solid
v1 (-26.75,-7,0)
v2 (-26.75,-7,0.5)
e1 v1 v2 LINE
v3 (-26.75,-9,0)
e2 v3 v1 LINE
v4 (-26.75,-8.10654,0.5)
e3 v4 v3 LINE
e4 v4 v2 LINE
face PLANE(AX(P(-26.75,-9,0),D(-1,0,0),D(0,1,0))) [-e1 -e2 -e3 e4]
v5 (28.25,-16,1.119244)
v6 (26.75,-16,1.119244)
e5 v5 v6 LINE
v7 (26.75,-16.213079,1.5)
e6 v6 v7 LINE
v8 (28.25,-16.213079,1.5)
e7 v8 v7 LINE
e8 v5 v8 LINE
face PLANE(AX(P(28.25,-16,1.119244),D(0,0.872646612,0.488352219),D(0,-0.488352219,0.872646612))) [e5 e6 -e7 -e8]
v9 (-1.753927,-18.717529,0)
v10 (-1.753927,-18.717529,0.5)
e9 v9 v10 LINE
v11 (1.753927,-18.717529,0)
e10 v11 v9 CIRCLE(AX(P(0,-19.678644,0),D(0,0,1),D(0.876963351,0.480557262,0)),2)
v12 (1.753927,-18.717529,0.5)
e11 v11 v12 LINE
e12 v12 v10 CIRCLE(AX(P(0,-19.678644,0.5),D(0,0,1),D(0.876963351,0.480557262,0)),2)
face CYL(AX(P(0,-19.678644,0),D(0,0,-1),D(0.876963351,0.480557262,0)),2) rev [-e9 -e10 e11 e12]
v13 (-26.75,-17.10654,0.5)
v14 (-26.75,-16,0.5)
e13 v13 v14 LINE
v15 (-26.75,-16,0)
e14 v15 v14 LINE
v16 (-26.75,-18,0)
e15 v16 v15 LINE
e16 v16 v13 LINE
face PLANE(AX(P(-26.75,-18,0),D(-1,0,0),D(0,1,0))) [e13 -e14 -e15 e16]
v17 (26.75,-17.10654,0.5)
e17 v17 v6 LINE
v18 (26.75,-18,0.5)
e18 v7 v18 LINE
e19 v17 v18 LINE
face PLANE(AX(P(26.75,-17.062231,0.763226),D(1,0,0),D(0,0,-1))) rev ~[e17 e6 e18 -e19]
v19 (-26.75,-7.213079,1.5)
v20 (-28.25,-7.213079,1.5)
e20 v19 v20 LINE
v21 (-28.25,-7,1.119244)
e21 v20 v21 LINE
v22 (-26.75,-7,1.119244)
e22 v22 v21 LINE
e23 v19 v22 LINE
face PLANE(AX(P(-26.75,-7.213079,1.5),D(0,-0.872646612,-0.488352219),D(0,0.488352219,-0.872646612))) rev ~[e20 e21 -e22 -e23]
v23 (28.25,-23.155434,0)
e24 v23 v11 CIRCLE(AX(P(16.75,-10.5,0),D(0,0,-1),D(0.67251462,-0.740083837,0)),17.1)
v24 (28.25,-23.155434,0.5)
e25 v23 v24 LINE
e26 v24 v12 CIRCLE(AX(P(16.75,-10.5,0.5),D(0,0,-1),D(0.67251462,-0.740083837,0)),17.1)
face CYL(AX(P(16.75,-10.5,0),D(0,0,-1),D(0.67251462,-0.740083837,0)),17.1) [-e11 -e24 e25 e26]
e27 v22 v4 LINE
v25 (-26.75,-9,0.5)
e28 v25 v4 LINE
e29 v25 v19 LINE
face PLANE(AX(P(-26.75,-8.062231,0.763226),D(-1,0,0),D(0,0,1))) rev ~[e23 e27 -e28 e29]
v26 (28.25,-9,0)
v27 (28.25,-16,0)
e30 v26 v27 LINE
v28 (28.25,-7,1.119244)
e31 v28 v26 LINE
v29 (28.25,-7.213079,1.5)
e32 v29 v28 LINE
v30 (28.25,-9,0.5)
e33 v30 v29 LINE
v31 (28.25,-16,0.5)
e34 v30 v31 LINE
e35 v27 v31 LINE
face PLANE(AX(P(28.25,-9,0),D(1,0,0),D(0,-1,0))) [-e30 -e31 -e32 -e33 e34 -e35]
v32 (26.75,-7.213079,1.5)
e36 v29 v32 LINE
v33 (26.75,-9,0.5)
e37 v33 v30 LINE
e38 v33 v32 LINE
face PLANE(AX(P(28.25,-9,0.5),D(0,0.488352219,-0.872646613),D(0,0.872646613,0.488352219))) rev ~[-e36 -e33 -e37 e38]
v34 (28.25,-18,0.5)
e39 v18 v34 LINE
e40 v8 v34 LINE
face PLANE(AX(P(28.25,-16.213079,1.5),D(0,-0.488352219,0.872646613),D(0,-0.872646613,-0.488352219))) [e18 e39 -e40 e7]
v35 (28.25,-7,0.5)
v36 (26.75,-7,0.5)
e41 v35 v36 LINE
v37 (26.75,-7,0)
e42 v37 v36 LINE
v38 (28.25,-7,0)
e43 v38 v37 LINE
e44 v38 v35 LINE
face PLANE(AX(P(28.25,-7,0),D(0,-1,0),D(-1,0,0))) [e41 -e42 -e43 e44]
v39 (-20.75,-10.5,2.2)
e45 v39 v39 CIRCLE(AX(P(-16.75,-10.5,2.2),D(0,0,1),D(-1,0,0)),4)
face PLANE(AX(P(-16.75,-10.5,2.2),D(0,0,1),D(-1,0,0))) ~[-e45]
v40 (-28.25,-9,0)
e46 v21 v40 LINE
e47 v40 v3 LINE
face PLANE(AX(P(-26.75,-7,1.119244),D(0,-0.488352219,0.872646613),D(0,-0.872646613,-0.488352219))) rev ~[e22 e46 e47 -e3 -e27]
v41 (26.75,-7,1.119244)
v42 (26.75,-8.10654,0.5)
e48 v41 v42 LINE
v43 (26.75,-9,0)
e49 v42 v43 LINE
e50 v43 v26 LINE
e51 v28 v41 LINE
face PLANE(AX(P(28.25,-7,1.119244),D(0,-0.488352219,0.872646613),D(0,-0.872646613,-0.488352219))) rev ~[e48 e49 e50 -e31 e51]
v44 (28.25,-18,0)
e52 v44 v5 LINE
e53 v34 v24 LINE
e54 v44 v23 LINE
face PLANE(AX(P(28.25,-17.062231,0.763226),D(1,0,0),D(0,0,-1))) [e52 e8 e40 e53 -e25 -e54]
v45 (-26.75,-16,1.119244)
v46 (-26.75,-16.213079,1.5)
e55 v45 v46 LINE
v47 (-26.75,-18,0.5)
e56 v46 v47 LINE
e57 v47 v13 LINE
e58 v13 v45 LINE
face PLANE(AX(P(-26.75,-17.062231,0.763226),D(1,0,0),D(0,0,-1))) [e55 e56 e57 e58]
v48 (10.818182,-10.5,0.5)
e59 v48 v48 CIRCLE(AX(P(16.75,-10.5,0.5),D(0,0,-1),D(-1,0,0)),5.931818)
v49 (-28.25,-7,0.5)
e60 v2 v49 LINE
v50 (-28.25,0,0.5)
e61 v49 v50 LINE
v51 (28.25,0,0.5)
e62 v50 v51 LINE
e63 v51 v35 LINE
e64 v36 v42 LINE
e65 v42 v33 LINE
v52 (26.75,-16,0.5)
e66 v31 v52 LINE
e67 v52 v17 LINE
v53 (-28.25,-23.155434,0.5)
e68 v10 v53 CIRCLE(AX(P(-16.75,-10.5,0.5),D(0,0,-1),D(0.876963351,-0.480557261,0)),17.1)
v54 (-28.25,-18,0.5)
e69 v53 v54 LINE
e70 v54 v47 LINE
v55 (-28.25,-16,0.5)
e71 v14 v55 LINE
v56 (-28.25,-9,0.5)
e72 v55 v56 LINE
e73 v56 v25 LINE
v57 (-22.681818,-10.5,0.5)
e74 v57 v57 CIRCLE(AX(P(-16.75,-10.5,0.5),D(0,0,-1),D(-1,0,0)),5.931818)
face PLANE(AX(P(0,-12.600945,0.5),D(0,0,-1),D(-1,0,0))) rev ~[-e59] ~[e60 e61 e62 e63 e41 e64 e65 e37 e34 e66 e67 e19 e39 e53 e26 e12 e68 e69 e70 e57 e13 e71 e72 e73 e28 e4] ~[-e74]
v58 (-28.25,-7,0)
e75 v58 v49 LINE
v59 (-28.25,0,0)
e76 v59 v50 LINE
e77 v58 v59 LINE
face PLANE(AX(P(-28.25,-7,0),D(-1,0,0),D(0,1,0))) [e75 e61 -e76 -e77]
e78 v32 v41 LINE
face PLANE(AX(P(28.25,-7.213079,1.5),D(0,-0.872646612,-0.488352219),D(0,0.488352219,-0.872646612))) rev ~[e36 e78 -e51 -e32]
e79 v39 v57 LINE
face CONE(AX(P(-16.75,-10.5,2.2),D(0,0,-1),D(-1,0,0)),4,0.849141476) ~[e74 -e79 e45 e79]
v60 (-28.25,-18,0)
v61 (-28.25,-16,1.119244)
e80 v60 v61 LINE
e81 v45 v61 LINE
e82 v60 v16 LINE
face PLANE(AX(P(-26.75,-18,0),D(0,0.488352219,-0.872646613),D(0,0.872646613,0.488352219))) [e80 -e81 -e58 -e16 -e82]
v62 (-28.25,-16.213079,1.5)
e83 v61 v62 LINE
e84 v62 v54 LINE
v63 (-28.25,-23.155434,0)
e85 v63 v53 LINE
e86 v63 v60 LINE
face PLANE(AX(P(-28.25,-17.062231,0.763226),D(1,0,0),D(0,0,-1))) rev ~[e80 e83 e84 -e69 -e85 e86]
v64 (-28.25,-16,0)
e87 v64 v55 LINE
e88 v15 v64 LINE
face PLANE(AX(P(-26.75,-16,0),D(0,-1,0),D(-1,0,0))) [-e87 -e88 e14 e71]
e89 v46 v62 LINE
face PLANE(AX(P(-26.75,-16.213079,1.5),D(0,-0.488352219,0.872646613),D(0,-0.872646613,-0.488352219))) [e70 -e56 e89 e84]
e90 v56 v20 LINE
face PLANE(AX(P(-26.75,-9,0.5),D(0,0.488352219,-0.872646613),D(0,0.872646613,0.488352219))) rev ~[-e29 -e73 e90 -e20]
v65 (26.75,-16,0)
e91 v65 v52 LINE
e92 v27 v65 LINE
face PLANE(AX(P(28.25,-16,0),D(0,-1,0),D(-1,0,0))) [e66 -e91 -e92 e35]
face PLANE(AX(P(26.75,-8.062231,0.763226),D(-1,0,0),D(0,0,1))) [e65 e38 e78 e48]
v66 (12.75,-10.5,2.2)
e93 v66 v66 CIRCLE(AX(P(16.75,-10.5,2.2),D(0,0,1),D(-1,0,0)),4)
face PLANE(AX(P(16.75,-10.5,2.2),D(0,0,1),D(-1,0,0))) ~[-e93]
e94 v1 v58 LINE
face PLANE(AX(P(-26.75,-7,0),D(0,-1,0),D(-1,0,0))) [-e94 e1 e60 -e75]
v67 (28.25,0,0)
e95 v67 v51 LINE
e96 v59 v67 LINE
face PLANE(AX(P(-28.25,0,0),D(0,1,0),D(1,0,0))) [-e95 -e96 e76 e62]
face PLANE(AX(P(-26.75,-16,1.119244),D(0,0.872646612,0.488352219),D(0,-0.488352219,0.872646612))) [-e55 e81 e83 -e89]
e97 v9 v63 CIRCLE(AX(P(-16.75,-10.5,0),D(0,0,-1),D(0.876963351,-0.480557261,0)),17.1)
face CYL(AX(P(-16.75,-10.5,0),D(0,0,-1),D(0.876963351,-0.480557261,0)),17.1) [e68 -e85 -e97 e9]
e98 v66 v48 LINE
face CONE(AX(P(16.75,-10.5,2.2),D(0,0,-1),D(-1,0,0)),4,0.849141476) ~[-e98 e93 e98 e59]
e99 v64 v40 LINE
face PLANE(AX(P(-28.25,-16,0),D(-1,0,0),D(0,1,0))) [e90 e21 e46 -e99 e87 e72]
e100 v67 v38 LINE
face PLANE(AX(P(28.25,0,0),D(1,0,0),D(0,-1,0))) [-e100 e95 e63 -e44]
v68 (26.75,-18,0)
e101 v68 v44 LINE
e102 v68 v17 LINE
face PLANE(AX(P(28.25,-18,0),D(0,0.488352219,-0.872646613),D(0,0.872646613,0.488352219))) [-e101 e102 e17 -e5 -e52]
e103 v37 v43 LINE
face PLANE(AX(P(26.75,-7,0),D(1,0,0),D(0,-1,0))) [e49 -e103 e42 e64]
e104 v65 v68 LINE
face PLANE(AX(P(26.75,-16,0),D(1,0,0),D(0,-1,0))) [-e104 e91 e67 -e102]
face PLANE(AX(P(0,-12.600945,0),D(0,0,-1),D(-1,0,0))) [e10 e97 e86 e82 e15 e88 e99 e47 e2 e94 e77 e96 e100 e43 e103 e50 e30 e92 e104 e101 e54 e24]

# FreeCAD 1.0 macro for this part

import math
import FreeCAD as App
import Part
import Sketcher
from FreeCAD import Vector

doc = App.newDocument("Part")
body = doc.addObject("PartDesign::Body", "Body")

# Sketch on XY plane
sketch1 = doc.addObject("Sketcher::SketchObject", "Sketch")
body.addObject(sketch1)
sketch1.AttachmentSupport = (doc.XY_Plane, [""])
sketch1.MapMode = "FlatFace"
sketch1.addGeometry(Part.LineSegment(Vector(28.2, 0, 0), Vector(-28.2, 0, 0)), False)
sketch1.addGeometry(Part.LineSegment(Vector(-28.2, 0, 0), Vector(-28.2, -7, 0)), False)
sketch1.addGeometry(Part.LineSegment(Vector(-28.2, -7, 0), Vector(-26.8, -7, 0)), False)
sketch1.addGeometry(Part.LineSegment(Vector(-26.8, -7, 0), Vector(-26.8, -9, 0)), False)
sketch1.addGeometry(Part.LineSegment(Vector(-26.8, -9, 0), Vector(-28.2, -9, 0)), False)
sketch1.addGeometry(Part.LineSegment(Vector(-28.2, -9, 0), Vector(-28.2, -16, 0)), False)
sketch1.addGeometry(Part.LineSegment(Vector(-28.2, -16, 0), Vector(-26.8, -16, 0)), False)
sketch1.addGeometry(Part.LineSegment(Vector(-26.8, -16, 0), Vector(-26.8, -18, 0)), False)
sketch1.addGeometry(Part.LineSegment(Vector(-26.8, -18, 0), Vector(-28.2, -18, 0)), False)
sketch1.addGeometry(Part.LineSegment(Vector(-28.2, -18, 0), Vector(-28.2, -23.2, 0)), False)
sketch1.addGeometry(Part.ArcOfCircle(Part.Circle(Vector(-16.8, -10.5, 0), Vector(0, 0, 1), 17.1), math.radians(-132), math.radians(-29)), False)
sketch1.addGeometry(Part.ArcOfCircle(Part.Circle(Vector(0, -19.7, 0), Vector(0, 0, 1), 2), math.radians(29), math.radians(151)), False)
sketch1.addGeometry(Part.ArcOfCircle(Part.Circle(Vector(16.8, -10.5, 0), Vector(0, 0, 1), 17.1), math.radians(-151), math.radians(-48)), False)
sketch1.addGeometry(Part.LineSegment(Vector(28.2, -23.2, 0), Vector(28.2, -18, 0)), False)
sketch1.addGeometry(Part.LineSegment(Vector(28.2, -18, 0), Vector(26.8, -18, 0)), False)
sketch1.addGeometry(Part.LineSegment(Vector(26.8, -18, 0), Vector(26.8, -16, 0)), False)
sketch1.addGeometry(Part.LineSegment(Vector(26.8, -16, 0), Vector(28.2, -16, 0)), False)
sketch1.addGeometry(Part.LineSegment(Vector(28.2, -16, 0), Vector(28.2, -9, 0)), False)
sketch1.addGeometry(Part.LineSegment(Vector(28.2, -9, 0), Vector(26.8, -9, 0)), False)
sketch1.addGeometry(Part.LineSegment(Vector(26.8, -9, 0), Vector(26.8, -7, 0)), False)
sketch1.addGeometry(Part.LineSegment(Vector(26.8, -7, 0), Vector(28.2, -7, 0)), False)
sketch1.addGeometry(Part.LineSegment(Vector(28.2, -7, 0), Vector(28.2, 0, 0)), False)
sketch1.addConstraint(Sketcher.Constraint("Coincident", 0, 2, 1, 1))
sketch1.addConstraint(Sketcher.Constraint("Coincident", 1, 2, 2, 1))
sketch1.addConstraint(Sketcher.Constraint("Coincident", 2, 2, 3, 1))
sketch1.addConstraint(Sketcher.Constraint("Coincident", 3, 2, 4, 1))
sketch1.addConstraint(Sketcher.Constraint("Coincident", 4, 2, 5, 1))
sketch1.addConstraint(Sketcher.Constraint("Coincident", 5, 2, 6, 1))
sketch1.addConstraint(Sketcher.Constraint("Coincident", 6, 2, 7, 1))
sketch1.addConstraint(Sketcher.Constraint("Coincident", 7, 2, 8, 1))
sketch1.addConstraint(Sketcher.Constraint("Coincident", 8, 2, 9, 1))
sketch1.addConstraint(Sketcher.Constraint("Coincident", 9, 2, 10, 1))
sketch1.addConstraint(Sketcher.Constraint("Tangent", 10, 2, 11, 2))
sketch1.addConstraint(Sketcher.Constraint("Tangent", 11, 1, 12, 1))
sketch1.addConstraint(Sketcher.Constraint("Coincident", 12, 2, 13, 1))
sketch1.addConstraint(Sketcher.Constraint("Coincident", 13, 2, 14, 1))
sketch1.addConstraint(Sketcher.Constraint("Coincident", 14, 2, 15, 1))
sketch1.addConstraint(Sketcher.Constraint("Coincident", 15, 2, 16, 1))
sketch1.addConstraint(Sketcher.Constraint("Coincident", 16, 2, 17, 1))
sketch1.addConstraint(Sketcher.Constraint("Coincident", 17, 2, 18, 1))
sketch1.addConstraint(Sketcher.Constraint("Coincident", 18, 2, 19, 1))
sketch1.addConstraint(Sketcher.Constraint("Coincident", 19, 2, 20, 1))
sketch1.addConstraint(Sketcher.Constraint("Coincident", 20, 2, 21, 1))
sketch1.addConstraint(Sketcher.Constraint("Coincident", 21, 2, 0, 1))
sketch1.addConstraint(Sketcher.Constraint("Horizontal", 0))
sketch1.addConstraint(Sketcher.Constraint("Vertical", 1))
sketch1.addConstraint(Sketcher.Constraint("Horizontal", 2))
sketch1.addConstraint(Sketcher.Constraint("Vertical", 3))
sketch1.addConstraint(Sketcher.Constraint("Horizontal", 4))
sketch1.addConstraint(Sketcher.Constraint("Vertical", 5))
sketch1.addConstraint(Sketcher.Constraint("Horizontal", 6))
sketch1.addConstraint(Sketcher.Constraint("Vertical", 7))
sketch1.addConstraint(Sketcher.Constraint("Horizontal", 8))
sketch1.addConstraint(Sketcher.Constraint("Vertical", 9))
sketch1.addConstraint(Sketcher.Constraint("Vertical", 13))
sketch1.addConstraint(Sketcher.Constraint("Horizontal", 14))
sketch1.addConstraint(Sketcher.Constraint("Vertical", 15))
sketch1.addConstraint(Sketcher.Constraint("Horizontal", 16))
sketch1.addConstraint(Sketcher.Constraint("Vertical", 17))
sketch1.addConstraint(Sketcher.Constraint("Horizontal", 18))
sketch1.addConstraint(Sketcher.Constraint("Vertical", 19))
sketch1.addConstraint(Sketcher.Constraint("Horizontal", 20))
sketch1.addConstraint(Sketcher.Constraint("Vertical", 21))
sketch1.addConstraint(Sketcher.Constraint("Equal", 10, 12))
sketch1.addConstraint(Sketcher.Constraint("Symmetric", 0, 2, 21, 2, -1, 1))
sketch1.addConstraint(Sketcher.Constraint("Symmetric", 10, 3, 12, 3, -2))
sketch1.addConstraint(Sketcher.Constraint("Symmetric", 8, 2, 13, 2, -2))
sketch1.addConstraint(Sketcher.Constraint("Symmetric", 6, 2, 15, 2, -2))
sketch1.addConstraint(Sketcher.Constraint("Symmetric", 4, 2, 17, 2, -2))
sketch1.addConstraint(Sketcher.Constraint("Symmetric", 2, 2, 19, 2, -2))
sketch1.addConstraint(Sketcher.Constraint("Vertical", 1, 2, 4, 2))
sketch1.addConstraint(Sketcher.Constraint("Vertical", 3, 2, 6, 2))
sketch1.addConstraint(Sketcher.Constraint("Vertical", 5, 2, 8, 2))
sketch1.addConstraint(Sketcher.Constraint("Equal", 1, 5))
sketch1.addConstraint(Sketcher.Constraint("Equal", 3, 7))
sketch1.addConstraint(Sketcher.Constraint("Radius", 11, 2.0))
sketch1.addConstraint(Sketcher.Constraint("Radius", 10, 17.1))
sketch1.addConstraint(Sketcher.Constraint("DistanceY", 1, 2, 1, 1, 7.0))
sketch1.addConstraint(Sketcher.Constraint("DistanceY", 3, 2, 3, 1, 2.0))
sketch1.addConstraint(Sketcher.Constraint("DistanceX", 0, 2, 0, 1, 56.5))
sketch1.addConstraint(Sketcher.Constraint("DistanceX", 2, 1, 2, 2, 1.5))
sketch1.addConstraint(Sketcher.Constraint("DistanceX", 0, 2, 12, 3, 45.0))
sketch1.addConstraint(Sketcher.Constraint("DistanceY", 10, 3, -1, 1, 10.5))
pad1 = doc.addObject("PartDesign::Pad", "Pad")
body.addObject(pad1)
pad1.Profile = sketch1
pad1.Length = 0.5

# Sketch on XZ plane
sketch2 = doc.addObject("Sketcher::SketchObject", "Sketch001")
body.addObject(sketch2)
sketch2.AttachmentSupport = (doc.XZ_Plane, [""])
sketch2.MapMode = "FlatFace"
sketch2.AttachmentOffset = App.Placement(Vector(0, 0, 10.5), App.Rotation())
sketch2.addGeometry(Part.LineSegment(Vector(-16.8, 2.2, 0), Vector(-16.8, 0, 0)), False)
sketch2.addGeometry(Part.LineSegment(Vector(-16.8, 0, 0), Vector(-10.2, 0, 0)), False)
sketch2.addGeometry(Part.LineSegment(Vector(-10.2, 0, 0), Vector(-12.8, 2.2, 0)), False)
sketch2.addGeometry(Part.LineSegment(Vector(-12.8, 2.2, 0), Vector(-16.8, 2.2, 0)), False)
sketch2.addGeometry(Part.LineSegment(Vector(-16.8, 0, 0), Vector(-16.8, 2.2, 0)), True)  # axis
sketch2.addConstraint(Sketcher.Constraint("Coincident", 0, 2, 1, 1))
sketch2.addConstraint(Sketcher.Constraint("Coincident", 1, 2, 2, 1))
sketch2.addConstraint(Sketcher.Constraint("Coincident", 2, 2, 3, 1))
sketch2.addConstraint(Sketcher.Constraint("Coincident", 3, 2, 0, 1))
sketch2.addConstraint(Sketcher.Constraint("Vertical", 0))
sketch2.addConstraint(Sketcher.Constraint("Horizontal", 1))
sketch2.addConstraint(Sketcher.Constraint("Horizontal", 3))
sketch2.addConstraint(Sketcher.Constraint("Vertical", 4))
sketch2.addConstraint(Sketcher.Constraint("Coincident", 4, 1, 0, 2))
sketch2.addConstraint(Sketcher.Constraint("PointOnObject", 0, 2, -1))
sketch2.addConstraint(Sketcher.Constraint("Horizontal", 2, 2, 4, 2))
sketch2.addConstraint(Sketcher.Constraint("DistanceX", 3, 2, 3, 1, 4.0))
sketch2.addConstraint(Sketcher.Constraint("DistanceX", 1, 1, 1, 2, 6.5))
sketch2.addConstraint(Sketcher.Constraint("DistanceY", 0, 2, 0, 1, 2.2))
sketch2.addConstraint(Sketcher.Constraint("DistanceX", 0, 2, -1, 1, 16.75))
revolution = doc.addObject("PartDesign::Revolution", "Revolution")
body.addObject(revolution)
revolution.Profile = sketch2
revolution.ReferenceAxis = (sketch2, ["Axis0"])
revolution.Angle = 360

# Sketch on XZ plane
sketch3 = doc.addObject("Sketcher::SketchObject", "Sketch002")
body.addObject(sketch3)
sketch3.AttachmentSupport = (doc.XZ_Plane, [""])
sketch3.MapMode = "FlatFace"
sketch3.AttachmentOffset = App.Placement(Vector(0, 0, 10.5), App.Rotation())
sketch3.addGeometry(Part.LineSegment(Vector(16.8, 2.2, 0), Vector(16.8, 0, 0)), False)
sketch3.addGeometry(Part.LineSegment(Vector(16.8, 0, 0), Vector(23.2, 0, 0)), False)
sketch3.addGeometry(Part.LineSegment(Vector(23.2, 0, 0), Vector(20.8, 2.2, 0)), False)
sketch3.addGeometry(Part.LineSegment(Vector(20.8, 2.2, 0), Vector(16.8, 2.2, 0)), False)
sketch3.addGeometry(Part.LineSegment(Vector(16.8, 0, 0), Vector(16.8, 2.2, 0)), True)  # axis
sketch3.addConstraint(Sketcher.Constraint("Coincident", 0, 2, 1, 1))
sketch3.addConstraint(Sketcher.Constraint("Coincident", 1, 2, 2, 1))
sketch3.addConstraint(Sketcher.Constraint("Coincident", 2, 2, 3, 1))
sketch3.addConstraint(Sketcher.Constraint("Coincident", 3, 2, 0, 1))
sketch3.addConstraint(Sketcher.Constraint("Vertical", 0))
sketch3.addConstraint(Sketcher.Constraint("Horizontal", 1))
sketch3.addConstraint(Sketcher.Constraint("Horizontal", 3))
sketch3.addConstraint(Sketcher.Constraint("Vertical", 4))
sketch3.addConstraint(Sketcher.Constraint("Coincident", 4, 1, 0, 2))
sketch3.addConstraint(Sketcher.Constraint("PointOnObject", 0, 2, -1))
sketch3.addConstraint(Sketcher.Constraint("Horizontal", 2, 2, 4, 2))
sketch3.addConstraint(Sketcher.Constraint("DistanceX", 3, 2, 3, 1, 4.0))
sketch3.addConstraint(Sketcher.Constraint("DistanceX", 1, 1, 1, 2, 6.5))
sketch3.addConstraint(Sketcher.Constraint("DistanceY", 0, 2, 0, 1, 2.2))
sketch3.addConstraint(Sketcher.Constraint("DistanceX", -1, 1, 0, 2, 16.75))
revolution2 = doc.addObject("PartDesign::Revolution", "Revolution001")
body.addObject(revolution2)
revolution2.Profile = sketch3
revolution2.ReferenceAxis = (sketch3, ["Axis0"])
revolution2.Angle = 360

# Sketch on YZ plane
sketch4 = doc.addObject("Sketcher::SketchObject", "Sketch003")
body.addObject(sketch4)
sketch4.AttachmentSupport = (doc.YZ_Plane, [""])
sketch4.MapMode = "FlatFace"
sketch4.AttachmentOffset = App.Placement(Vector(0, 0, 28.25), App.Rotation())
sketch4.addGeometry(Part.LineSegment(Vector(-18, 0, 0), Vector(-16, 1.12, 0)), False)
sketch4.addGeometry(Part.LineSegment(Vector(-16, 1.12, 0), Vector(-16.21, 1.5, 0)), False)
sketch4.addGeometry(Part.LineSegment(Vector(-16.21, 1.5, 0), Vector(-18, 0.5, 0)), False)
sketch4.addGeometry(Part.LineSegment(Vector(-18, 0.5, 0), Vector(-18, 0, 0)), False)
sketch4.addGeometry(Part.LineSegment(Vector(-7.21, 1.5, 0), Vector(-9, 0.5, 0)), False)
sketch4.addGeometry(Part.LineSegment(Vector(-9, 0.5, 0), Vector(-9, 0, 0)), False)
sketch4.addGeometry(Part.LineSegment(Vector(-9, 0, 0), Vector(-7, 1.12, 0)), False)
sketch4.addGeometry(Part.LineSegment(Vector(-7, 1.12, 0), Vector(-7.21, 1.5, 0)), False)
sketch4.addConstraint(Sketcher.Constraint("Coincident", 0, 2, 1, 1))
sketch4.addConstraint(Sketcher.Constraint("Coincident", 1, 2, 2, 1))
sketch4.addConstraint(Sketcher.Constraint("Coincident", 2, 2, 3, 1))
sketch4.addConstraint(Sketcher.Constraint("Coincident", 3, 2, 0, 1))
sketch4.addConstraint(Sketcher.Constraint("Coincident", 4, 2, 5, 1))
sketch4.addConstraint(Sketcher.Constraint("Coincident", 5, 2, 6, 1))
sketch4.addConstraint(Sketcher.Constraint("Coincident", 6, 2, 7, 1))
sketch4.addConstraint(Sketcher.Constraint("Coincident", 7, 2, 4, 1))
sketch4.addConstraint(Sketcher.Constraint("Vertical", 3))
sketch4.addConstraint(Sketcher.Constraint("Vertical", 5))
sketch4.addConstraint(Sketcher.Constraint("PointOnObject", 3, 2, -1))
sketch4.addConstraint(Sketcher.Constraint("PointOnObject", 5, 2, -1))
sketch4.addConstraint(Sketcher.Constraint("Perpendicular", 0, 1))
sketch4.addConstraint(Sketcher.Constraint("Perpendicular", 1, 2))
sketch4.addConstraint(Sketcher.Constraint("Parallel", 2, 4))
sketch4.addConstraint(Sketcher.Constraint("Parallel", 4, 6))
sketch4.addConstraint(Sketcher.Constraint("Perpendicular", 6, 7))
sketch4.addConstraint(Sketcher.Constraint("Horizontal", 2, 2, 4, 2))
sketch4.addConstraint(Sketcher.Constraint("Horizontal", 0, 2, 6, 2))
sketch4.addConstraint(Sketcher.Constraint("DistanceY", 3, 2, 3, 1, 0.5))
sketch4.addConstraint(Sketcher.Constraint("DistanceX", 0, 2, -1, 1, 16.0))
sketch4.addConstraint(Sketcher.Constraint("DistanceX", 2, 2, -1, 1, 18.0))
sketch4.addConstraint(Sketcher.Constraint("DistanceX", 4, 2, -1, 1, 9.0))
sketch4.addConstraint(Sketcher.Constraint("DistanceY", 2, 2, 1, 2, 1.0))
pad2 = doc.addObject("PartDesign::Pad", "Pad001")
body.addObject(pad2)
pad2.Profile = sketch4
pad2.Length = 1.5
pad2.Reversed = True

# Sketch on YZ plane
sketch5 = doc.addObject("Sketcher::SketchObject", "Sketch004")
body.addObject(sketch5)
sketch5.AttachmentSupport = (doc.YZ_Plane, [""])
sketch5.MapMode = "FlatFace"
sketch5.AttachmentOffset = App.Placement(Vector(0, 0, -26.75), App.Rotation())
sketch5.addGeometry(Part.LineSegment(Vector(-18, 0, 0), Vector(-16, 1.12, 0)), False)
sketch5.addGeometry(Part.LineSegment(Vector(-16, 1.12, 0), Vector(-16.21, 1.5, 0)), False)
sketch5.addGeometry(Part.LineSegment(Vector(-16.21, 1.5, 0), Vector(-18, 0.5, 0)), False)
sketch5.addGeometry(Part.LineSegment(Vector(-18, 0.5, 0), Vector(-18, 0, 0)), False)
sketch5.addGeometry(Part.LineSegment(Vector(-7.21, 1.5, 0), Vector(-9, 0.5, 0)), False)
sketch5.addGeometry(Part.LineSegment(Vector(-9, 0.5, 0), Vector(-9, 0, 0)), False)
sketch5.addGeometry(Part.LineSegment(Vector(-9, 0, 0), Vector(-7, 1.12, 0)), False)
sketch5.addGeometry(Part.LineSegment(Vector(-7, 1.12, 0), Vector(-7.21, 1.5, 0)), False)
sketch5.addConstraint(Sketcher.Constraint("Coincident", 0, 2, 1, 1))
sketch5.addConstraint(Sketcher.Constraint("Coincident", 1, 2, 2, 1))
sketch5.addConstraint(Sketcher.Constraint("Coincident", 2, 2, 3, 1))
sketch5.addConstraint(Sketcher.Constraint("Coincident", 3, 2, 0, 1))
sketch5.addConstraint(Sketcher.Constraint("Coincident", 4, 2, 5, 1))
sketch5.addConstraint(Sketcher.Constraint("Coincident", 5, 2, 6, 1))
sketch5.addConstraint(Sketcher.Constraint("Coincident", 6, 2, 7, 1))
sketch5.addConstraint(Sketcher.Constraint("Coincident", 7, 2, 4, 1))
sketch5.addConstraint(Sketcher.Constraint("Vertical", 3))
sketch5.addConstraint(Sketcher.Constraint("Vertical", 5))
sketch5.addConstraint(Sketcher.Constraint("PointOnObject", 3, 2, -1))
sketch5.addConstraint(Sketcher.Constraint("PointOnObject", 5, 2, -1))
sketch5.addConstraint(Sketcher.Constraint("Perpendicular", 0, 1))
sketch5.addConstraint(Sketcher.Constraint("Perpendicular", 1, 2))
sketch5.addConstraint(Sketcher.Constraint("Parallel", 2, 4))
sketch5.addConstraint(Sketcher.Constraint("Parallel", 4, 6))
sketch5.addConstraint(Sketcher.Constraint("Perpendicular", 6, 7))
sketch5.addConstraint(Sketcher.Constraint("Horizontal", 2, 2, 4, 2))
sketch5.addConstraint(Sketcher.Constraint("Horizontal", 0, 2, 6, 2))
sketch5.addConstraint(Sketcher.Constraint("DistanceY", 3, 2, 3, 1, 0.5))
sketch5.addConstraint(Sketcher.Constraint("DistanceX", 0, 2, -1, 1, 16.0))
sketch5.addConstraint(Sketcher.Constraint("DistanceX", 2, 2, -1, 1, 18.0))
sketch5.addConstraint(Sketcher.Constraint("DistanceX", 4, 2, -1, 1, 9.0))
sketch5.addConstraint(Sketcher.Constraint("DistanceY", 2, 2, 1, 2, 1.0))
pad3 = doc.addObject("PartDesign::Pad", "Pad002")
body.addObject(pad3)
pad3.Profile = sketch5
pad3.Length = 1.5
pad3.Reversed = True

doc.recompute()
